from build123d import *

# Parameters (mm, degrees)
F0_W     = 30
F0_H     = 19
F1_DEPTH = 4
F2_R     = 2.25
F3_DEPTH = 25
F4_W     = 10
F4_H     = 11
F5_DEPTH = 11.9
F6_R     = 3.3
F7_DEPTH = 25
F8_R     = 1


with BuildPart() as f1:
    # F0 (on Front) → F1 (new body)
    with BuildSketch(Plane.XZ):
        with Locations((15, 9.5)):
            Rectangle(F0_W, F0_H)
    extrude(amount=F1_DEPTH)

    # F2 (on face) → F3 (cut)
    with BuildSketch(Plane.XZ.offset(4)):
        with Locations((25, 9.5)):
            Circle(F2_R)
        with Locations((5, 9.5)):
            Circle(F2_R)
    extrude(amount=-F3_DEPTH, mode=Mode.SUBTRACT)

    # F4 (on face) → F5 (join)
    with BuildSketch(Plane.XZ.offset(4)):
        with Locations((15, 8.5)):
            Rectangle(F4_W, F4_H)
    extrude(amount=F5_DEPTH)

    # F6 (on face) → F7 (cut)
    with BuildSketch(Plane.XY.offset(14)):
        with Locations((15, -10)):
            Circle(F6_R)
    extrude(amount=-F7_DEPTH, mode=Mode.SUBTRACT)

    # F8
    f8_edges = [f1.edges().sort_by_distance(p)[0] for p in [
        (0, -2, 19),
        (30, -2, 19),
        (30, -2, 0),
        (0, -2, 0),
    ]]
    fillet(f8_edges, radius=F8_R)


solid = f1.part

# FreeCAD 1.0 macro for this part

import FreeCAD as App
import Part
import Sketcher
from FreeCAD import Vector


def edges_at(feature, points):
    """Names of the edges that pass closest to the given points."""
    edges = feature.Shape.Edges
    near = lambda p: min(range(len(edges)), key=lambda i: edges[i].distToShape(Part.Vertex(*p))[0])
    return sorted({f"Edge{near(p) + 1}" for p in points})


def add_polygon(sketch, points):
    """Adds a closed chain of lines whose ends are joined by coincident constraints."""
    first, n = sketch.GeometryCount, len(points)
    for a, b in zip(points, points[1:] + points[:1]):
        sketch.addGeometry(Part.LineSegment(App.Vector(*a, 0), App.Vector(*b, 0)), False)
    for i in range(n):
        sketch.addConstraint(Sketcher.Constraint("Coincident", first + i, 2, first + (i + 1) % n, 1))

doc = App.newDocument("Part")
body = doc.addObject("PartDesign::Body", "Body")

# Sketch on XZ plane
sketch1 = body.newObject("Sketcher::SketchObject", "Sketch")
sketch1.AttachmentSupport = (doc.getObject("XZ_Plane"), [""])
sketch1.MapMode = "FlatFace"
add_polygon(sketch1, [(0, 19), (0, 0), (30, 0), (30, 19)])  # lines 0-3
sketch1.addConstraint([
    Sketcher.Constraint("Vertical", 0),
    Sketcher.Constraint("Horizontal", 1),
    Sketcher.Constraint("Vertical", 2),
    Sketcher.Constraint("Horizontal", 3),
    Sketcher.Constraint("Coincident", 0, 2, -1, 1),
    Sketcher.Constraint("DistanceX", 1, 1, 1, 2, 30.0),
    Sketcher.Constraint("DistanceY", 0, 2, 0, 1, 19.0),
])
pad1 = body.newObject("PartDesign::Pad", "Pad")
pad1.Profile = sketch1
pad1.Length = 4

# Sketch on XZ plane
sketch2 = body.newObject("Sketcher::SketchObject", "Sketch001")
sketch2.AttachmentSupport = (doc.getObject("XZ_Plane"), [""])
sketch2.MapMode = "FlatFace"
sketch2.AttachmentOffset = App.Placement(Vector(0, 0, 4), App.Rotation())
sketch2.addGeometry([
    Part.Circle(Vector(25, 9.5, 0), Vector(0, 0, 1), 2.25),
    Part.Circle(Vector(5, 9.5, 0), Vector(0, 0, 1), 2.25),
], False)
sketch2.addConstraint([
    Sketcher.Constraint("Equal", 0, 1),
    Sketcher.Constraint("Horizontal", 0, 3, 1, 3),
    Sketcher.Constraint("Diameter", 0, 4.5),
    Sketcher.Constraint("DistanceX", -1, 1, 0, 3, 25.0),
    Sketcher.Constraint("DistanceX", -1, 1, 1, 3, 5.0),
    Sketcher.Constraint("DistanceY", -1, 1, 0, 3, 9.5),
])
pocket1 = body.newObject("PartDesign::Pocket", "Pocket")
pocket1.Profile = sketch2
pocket1.Length = 25

# Sketch on XZ plane
sketch3 = body.newObject("Sketcher::SketchObject", "Sketch002")
sketch3.AttachmentSupport = (doc.getObject("XZ_Plane"), [""])
sketch3.MapMode = "FlatFace"
sketch3.AttachmentOffset = App.Placement(Vector(0, 0, 4), App.Rotation())
add_polygon(sketch3, [(10, 14), (10, 3), (20, 3), (20, 14)])  # lines 0-3
sketch3.addConstraint([
    Sketcher.Constraint("Vertical", 0),
    Sketcher.Constraint("Horizontal", 1),
    Sketcher.Constraint("Vertical", 2),
    Sketcher.Constraint("Horizontal", 3),
    Sketcher.Constraint("DistanceX", 1, 1, 1, 2, 10.0),
    Sketcher.Constraint("DistanceY", 0, 2, 0, 1, 11.0),
    Sketcher.Constraint("DistanceX", -1, 1, 0, 2, 10.0),
    Sketcher.Constraint("DistanceY", -1, 1, 0, 2, 3.0),
])
pad2 = body.newObject("PartDesign::Pad", "Pad001")
pad2.Profile = sketch3
pad2.Length = 11.9

# Sketch on XY plane
sketch4 = body.newObject("Sketcher::SketchObject", "Sketch003")
sketch4.AttachmentSupport = (doc.getObject("XY_Plane"), [""])
sketch4.MapMode = "FlatFace"
sketch4.AttachmentOffset = App.Placement(Vector(0, 0, 14), App.Rotation())
sketch4.addGeometry(Part.Circle(Vector(15, -10, 0), Vector(0, 0, 1), 3.3), False)
sketch4.addConstraint([
    Sketcher.Constraint("Diameter", 0, 6.6),
    Sketcher.Constraint("DistanceX", -1, 1, 0, 3, 15.0),
    Sketcher.Constraint("DistanceY", 0, 3, -1, 1, 10.0),
])
pocket2 = body.newObject("PartDesign::Pocket", "Pocket001")
pocket2.Profile = sketch4
pocket2.Length = 25
doc.recompute()

fillet = body.newObject("PartDesign::Fillet", "Fillet")
fillet.Base = (pocket2, edges_at(pocket2, [
    (0, -2, 19),
    (30, -2, 19),
    (30, -2, 0),
    (0, -2, 0),
]))
fillet.Radius = 1

doc.recompute()
